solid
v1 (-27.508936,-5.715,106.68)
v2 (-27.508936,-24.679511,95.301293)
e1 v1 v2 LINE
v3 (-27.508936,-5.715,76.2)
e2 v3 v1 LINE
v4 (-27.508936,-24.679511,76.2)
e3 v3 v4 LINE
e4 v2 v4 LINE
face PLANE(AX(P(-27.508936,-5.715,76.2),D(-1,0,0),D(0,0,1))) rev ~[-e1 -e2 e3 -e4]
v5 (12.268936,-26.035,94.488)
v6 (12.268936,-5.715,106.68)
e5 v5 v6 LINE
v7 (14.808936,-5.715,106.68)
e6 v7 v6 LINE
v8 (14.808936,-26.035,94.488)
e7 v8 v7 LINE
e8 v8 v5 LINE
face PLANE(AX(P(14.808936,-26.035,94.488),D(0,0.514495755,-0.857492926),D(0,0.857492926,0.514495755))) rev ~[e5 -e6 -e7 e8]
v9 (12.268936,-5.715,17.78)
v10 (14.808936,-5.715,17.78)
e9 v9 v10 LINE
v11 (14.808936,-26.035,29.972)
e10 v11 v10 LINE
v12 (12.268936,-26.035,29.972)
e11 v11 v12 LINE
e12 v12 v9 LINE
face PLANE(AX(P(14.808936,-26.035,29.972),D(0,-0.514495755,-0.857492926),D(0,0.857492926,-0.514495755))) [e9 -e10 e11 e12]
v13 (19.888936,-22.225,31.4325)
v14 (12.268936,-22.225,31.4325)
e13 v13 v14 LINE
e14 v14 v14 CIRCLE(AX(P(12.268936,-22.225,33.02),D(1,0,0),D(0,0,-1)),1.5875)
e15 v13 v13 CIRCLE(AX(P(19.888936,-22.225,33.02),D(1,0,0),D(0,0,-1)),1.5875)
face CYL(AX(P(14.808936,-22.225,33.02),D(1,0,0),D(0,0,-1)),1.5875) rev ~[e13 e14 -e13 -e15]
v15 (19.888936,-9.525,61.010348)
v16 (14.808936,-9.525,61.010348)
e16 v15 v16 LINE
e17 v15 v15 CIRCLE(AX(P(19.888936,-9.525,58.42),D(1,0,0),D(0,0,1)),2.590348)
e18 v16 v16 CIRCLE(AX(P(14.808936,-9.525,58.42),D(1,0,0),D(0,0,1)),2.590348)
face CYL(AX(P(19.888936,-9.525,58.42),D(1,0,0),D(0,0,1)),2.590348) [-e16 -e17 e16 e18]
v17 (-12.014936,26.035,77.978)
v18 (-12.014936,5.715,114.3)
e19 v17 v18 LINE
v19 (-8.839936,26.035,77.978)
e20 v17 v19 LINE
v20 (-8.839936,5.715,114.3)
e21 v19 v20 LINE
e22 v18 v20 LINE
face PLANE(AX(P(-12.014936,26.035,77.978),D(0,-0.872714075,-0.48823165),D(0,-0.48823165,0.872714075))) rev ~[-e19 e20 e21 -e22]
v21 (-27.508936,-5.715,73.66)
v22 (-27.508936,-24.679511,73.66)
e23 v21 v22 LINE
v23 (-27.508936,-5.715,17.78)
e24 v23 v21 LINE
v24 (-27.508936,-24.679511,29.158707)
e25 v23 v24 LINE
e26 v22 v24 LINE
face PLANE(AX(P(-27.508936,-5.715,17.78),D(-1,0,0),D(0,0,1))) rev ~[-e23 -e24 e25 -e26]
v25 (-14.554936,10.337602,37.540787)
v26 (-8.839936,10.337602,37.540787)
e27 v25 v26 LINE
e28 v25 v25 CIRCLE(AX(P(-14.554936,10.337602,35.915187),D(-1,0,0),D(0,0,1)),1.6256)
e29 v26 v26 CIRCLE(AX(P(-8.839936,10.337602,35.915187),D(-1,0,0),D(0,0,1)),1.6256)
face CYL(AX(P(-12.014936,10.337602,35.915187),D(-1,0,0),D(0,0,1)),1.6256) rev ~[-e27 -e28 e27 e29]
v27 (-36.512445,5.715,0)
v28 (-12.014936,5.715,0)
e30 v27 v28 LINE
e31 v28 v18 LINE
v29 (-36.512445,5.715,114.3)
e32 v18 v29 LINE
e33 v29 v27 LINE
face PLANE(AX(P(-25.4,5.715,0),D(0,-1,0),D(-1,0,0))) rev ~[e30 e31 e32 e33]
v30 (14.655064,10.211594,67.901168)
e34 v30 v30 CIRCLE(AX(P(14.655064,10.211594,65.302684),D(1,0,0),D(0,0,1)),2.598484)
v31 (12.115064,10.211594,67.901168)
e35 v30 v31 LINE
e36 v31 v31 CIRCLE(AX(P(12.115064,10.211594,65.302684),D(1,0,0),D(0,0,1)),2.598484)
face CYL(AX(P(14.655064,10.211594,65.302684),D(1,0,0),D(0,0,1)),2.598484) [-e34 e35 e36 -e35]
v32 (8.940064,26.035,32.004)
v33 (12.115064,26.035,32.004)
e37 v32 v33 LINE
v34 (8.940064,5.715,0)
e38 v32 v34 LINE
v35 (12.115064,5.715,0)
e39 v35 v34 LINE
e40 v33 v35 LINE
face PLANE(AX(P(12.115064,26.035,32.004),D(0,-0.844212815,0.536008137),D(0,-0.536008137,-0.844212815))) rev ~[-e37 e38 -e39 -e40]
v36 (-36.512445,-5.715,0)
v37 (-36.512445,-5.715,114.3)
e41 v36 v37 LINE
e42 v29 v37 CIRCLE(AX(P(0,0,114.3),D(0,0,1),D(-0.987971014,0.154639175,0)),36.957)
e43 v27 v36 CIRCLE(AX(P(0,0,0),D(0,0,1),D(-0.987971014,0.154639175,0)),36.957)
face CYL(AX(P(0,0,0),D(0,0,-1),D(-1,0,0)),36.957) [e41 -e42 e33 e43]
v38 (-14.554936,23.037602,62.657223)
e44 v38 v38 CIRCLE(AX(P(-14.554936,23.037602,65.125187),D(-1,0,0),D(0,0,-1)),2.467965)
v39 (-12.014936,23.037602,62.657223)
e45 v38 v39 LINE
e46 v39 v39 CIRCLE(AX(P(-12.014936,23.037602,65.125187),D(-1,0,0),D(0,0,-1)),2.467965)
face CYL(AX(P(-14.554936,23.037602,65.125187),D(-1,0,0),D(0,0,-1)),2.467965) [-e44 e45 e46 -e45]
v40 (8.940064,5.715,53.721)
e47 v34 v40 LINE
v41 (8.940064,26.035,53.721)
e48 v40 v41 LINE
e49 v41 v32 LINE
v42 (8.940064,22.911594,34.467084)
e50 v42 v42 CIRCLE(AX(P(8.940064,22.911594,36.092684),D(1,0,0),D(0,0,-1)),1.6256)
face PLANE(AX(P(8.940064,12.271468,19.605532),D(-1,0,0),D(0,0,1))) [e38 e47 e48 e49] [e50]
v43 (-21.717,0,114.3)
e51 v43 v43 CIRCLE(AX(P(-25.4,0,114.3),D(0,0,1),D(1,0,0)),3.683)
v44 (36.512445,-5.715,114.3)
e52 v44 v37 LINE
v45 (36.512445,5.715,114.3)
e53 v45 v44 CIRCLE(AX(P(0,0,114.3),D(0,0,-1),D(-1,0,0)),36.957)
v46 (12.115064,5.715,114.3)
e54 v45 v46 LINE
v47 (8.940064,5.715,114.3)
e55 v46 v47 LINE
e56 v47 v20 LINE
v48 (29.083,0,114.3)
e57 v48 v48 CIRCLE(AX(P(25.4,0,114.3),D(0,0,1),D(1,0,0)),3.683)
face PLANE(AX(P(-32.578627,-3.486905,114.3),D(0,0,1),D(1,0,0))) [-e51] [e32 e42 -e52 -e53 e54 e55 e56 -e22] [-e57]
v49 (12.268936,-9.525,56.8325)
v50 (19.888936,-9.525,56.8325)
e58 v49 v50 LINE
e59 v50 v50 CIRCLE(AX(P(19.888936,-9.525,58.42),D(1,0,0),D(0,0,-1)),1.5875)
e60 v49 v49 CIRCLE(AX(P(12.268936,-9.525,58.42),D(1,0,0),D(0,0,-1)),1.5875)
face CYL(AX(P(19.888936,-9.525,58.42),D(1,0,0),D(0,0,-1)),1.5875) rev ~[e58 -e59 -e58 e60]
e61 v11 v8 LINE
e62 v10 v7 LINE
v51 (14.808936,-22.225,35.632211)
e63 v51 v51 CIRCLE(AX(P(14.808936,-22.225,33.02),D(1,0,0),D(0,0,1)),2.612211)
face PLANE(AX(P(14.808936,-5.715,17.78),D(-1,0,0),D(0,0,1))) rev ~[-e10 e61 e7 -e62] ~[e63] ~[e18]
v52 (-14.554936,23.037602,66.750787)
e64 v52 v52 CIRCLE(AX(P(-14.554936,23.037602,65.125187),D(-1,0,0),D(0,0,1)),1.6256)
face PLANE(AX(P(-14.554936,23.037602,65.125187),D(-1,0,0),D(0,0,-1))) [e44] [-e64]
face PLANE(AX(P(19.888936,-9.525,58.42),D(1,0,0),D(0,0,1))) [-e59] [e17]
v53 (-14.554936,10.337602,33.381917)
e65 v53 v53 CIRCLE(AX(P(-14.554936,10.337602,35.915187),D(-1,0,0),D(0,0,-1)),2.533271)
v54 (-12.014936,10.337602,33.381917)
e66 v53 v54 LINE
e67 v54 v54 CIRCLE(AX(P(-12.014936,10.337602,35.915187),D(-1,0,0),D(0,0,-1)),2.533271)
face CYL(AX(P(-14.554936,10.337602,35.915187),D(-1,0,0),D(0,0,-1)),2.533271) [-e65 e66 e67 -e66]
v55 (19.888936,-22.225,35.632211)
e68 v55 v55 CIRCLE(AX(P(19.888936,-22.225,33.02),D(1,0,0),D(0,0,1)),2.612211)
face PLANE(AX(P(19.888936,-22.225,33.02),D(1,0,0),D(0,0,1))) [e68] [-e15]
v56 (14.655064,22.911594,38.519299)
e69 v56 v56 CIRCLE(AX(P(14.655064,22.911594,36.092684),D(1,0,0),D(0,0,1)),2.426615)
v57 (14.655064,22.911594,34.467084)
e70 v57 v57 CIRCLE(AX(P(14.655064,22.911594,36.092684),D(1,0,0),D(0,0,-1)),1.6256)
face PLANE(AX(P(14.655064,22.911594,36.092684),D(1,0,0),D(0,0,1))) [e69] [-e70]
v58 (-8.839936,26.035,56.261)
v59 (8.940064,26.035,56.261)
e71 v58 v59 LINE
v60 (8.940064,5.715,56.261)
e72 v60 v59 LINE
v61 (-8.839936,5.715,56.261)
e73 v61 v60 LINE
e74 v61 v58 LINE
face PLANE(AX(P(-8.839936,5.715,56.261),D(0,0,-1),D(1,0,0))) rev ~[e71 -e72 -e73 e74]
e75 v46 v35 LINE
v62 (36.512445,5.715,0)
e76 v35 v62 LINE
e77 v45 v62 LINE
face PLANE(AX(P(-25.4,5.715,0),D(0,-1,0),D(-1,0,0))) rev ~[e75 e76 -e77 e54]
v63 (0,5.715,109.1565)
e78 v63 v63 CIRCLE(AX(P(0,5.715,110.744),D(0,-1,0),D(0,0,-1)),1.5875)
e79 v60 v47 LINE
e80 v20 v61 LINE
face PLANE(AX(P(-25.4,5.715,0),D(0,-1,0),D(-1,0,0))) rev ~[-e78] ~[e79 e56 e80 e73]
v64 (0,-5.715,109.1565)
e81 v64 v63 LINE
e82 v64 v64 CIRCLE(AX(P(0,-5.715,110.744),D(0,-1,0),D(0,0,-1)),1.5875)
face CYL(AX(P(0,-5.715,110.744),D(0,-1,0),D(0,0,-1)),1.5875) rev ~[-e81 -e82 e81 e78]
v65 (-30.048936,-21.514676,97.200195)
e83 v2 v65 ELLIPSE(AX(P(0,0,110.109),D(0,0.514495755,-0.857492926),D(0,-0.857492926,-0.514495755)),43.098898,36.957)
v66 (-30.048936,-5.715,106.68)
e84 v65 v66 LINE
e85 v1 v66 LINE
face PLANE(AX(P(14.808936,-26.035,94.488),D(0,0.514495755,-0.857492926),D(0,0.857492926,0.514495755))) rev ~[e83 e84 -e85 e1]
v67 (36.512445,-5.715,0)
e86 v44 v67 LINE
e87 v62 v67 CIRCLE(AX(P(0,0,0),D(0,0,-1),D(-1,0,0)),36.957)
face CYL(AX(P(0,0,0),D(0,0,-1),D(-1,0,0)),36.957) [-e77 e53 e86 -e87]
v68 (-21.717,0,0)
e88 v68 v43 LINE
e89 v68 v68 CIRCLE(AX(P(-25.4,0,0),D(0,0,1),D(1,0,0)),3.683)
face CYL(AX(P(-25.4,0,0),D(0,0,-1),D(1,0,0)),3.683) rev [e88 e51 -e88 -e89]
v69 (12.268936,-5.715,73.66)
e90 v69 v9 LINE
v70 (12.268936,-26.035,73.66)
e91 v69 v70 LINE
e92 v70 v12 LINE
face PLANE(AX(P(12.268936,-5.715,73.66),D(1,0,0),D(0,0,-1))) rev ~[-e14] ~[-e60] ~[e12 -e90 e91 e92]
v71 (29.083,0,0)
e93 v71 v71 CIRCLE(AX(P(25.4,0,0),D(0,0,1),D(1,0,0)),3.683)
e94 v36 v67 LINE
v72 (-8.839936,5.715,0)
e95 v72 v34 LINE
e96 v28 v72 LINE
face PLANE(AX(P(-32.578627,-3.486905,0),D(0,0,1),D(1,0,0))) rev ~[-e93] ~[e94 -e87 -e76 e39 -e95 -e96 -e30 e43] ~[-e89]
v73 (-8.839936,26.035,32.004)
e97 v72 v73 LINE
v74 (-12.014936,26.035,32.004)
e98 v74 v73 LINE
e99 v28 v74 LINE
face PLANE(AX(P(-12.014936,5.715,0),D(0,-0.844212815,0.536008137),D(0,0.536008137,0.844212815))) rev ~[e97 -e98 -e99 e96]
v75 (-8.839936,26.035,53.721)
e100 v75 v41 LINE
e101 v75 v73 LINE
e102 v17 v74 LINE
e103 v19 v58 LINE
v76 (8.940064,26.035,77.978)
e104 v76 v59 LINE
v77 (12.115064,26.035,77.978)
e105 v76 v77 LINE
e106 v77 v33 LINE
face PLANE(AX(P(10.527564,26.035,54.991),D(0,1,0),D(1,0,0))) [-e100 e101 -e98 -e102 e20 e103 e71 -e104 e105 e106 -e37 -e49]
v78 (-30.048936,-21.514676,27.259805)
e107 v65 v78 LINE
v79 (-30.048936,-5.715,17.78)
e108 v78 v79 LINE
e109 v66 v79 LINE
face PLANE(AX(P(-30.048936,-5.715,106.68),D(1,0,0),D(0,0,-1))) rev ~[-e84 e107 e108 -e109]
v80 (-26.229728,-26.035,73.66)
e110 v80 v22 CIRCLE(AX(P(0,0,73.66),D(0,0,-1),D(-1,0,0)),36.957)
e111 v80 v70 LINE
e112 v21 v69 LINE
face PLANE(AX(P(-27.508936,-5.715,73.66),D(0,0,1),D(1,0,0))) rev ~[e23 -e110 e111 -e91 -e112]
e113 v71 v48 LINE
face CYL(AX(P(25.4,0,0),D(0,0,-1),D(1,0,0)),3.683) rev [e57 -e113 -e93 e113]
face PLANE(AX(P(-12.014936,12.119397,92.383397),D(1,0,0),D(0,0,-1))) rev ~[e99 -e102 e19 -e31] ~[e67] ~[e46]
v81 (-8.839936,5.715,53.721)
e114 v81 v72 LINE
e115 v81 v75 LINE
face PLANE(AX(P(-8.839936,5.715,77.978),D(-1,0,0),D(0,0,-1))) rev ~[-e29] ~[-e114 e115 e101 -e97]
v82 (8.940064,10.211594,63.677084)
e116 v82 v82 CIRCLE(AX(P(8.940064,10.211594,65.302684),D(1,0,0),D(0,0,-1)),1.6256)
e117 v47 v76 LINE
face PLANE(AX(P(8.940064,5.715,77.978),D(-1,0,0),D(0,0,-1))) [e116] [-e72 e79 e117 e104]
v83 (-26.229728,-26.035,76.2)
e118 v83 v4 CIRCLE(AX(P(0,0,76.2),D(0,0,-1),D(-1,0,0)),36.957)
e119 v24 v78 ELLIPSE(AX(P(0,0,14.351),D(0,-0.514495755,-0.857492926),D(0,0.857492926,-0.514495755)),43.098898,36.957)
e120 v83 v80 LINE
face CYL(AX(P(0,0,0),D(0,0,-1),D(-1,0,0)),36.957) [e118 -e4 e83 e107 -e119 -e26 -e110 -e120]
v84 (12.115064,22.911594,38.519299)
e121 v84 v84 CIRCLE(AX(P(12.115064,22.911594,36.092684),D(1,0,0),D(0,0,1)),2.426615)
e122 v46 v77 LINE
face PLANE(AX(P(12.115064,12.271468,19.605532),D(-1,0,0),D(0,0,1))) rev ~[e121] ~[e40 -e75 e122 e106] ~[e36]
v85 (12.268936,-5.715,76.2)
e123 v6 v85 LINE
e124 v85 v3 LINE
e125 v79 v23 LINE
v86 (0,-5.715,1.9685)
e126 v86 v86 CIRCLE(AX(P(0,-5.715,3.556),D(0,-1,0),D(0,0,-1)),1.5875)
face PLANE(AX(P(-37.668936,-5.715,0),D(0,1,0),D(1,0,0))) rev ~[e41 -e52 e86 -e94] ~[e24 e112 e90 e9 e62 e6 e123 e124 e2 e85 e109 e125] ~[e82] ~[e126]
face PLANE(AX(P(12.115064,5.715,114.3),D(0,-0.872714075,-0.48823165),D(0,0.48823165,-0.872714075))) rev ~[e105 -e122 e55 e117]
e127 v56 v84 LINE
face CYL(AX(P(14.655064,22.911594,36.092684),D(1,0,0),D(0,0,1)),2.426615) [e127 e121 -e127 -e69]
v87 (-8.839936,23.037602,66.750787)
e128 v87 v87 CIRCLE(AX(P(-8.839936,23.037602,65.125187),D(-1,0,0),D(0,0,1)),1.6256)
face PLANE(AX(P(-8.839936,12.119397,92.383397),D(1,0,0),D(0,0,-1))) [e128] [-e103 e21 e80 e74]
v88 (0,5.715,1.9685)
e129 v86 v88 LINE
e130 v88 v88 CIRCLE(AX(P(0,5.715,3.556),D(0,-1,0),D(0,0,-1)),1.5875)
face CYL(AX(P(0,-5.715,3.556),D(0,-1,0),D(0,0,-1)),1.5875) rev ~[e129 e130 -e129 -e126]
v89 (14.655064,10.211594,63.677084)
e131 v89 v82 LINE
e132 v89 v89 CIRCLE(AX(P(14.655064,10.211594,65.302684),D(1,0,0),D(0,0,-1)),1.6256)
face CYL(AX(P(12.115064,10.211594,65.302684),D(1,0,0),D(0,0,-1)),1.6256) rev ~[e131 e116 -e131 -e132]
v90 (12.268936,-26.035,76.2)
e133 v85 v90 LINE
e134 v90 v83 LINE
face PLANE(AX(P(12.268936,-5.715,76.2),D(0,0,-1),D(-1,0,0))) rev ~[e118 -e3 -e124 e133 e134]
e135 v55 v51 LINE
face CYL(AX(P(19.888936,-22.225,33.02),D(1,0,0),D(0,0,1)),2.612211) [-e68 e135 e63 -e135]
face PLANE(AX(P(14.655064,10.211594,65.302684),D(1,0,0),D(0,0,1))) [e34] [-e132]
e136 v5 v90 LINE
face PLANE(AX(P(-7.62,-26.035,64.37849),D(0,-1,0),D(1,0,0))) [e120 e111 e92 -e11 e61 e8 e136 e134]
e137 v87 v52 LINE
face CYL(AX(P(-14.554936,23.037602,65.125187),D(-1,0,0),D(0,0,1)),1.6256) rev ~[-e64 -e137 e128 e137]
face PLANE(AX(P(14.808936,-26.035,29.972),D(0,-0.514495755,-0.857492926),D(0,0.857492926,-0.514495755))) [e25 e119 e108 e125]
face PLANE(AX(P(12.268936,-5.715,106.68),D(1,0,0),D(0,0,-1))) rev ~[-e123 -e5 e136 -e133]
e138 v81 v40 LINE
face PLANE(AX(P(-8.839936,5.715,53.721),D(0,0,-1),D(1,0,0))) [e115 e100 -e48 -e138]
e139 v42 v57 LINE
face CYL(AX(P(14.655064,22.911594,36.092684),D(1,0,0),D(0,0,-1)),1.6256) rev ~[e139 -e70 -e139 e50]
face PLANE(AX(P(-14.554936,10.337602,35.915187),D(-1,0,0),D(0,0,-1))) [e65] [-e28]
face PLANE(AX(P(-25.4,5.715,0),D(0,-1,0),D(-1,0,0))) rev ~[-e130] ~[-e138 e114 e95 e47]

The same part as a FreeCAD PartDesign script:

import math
import FreeCAD as App
import Part
import Sketcher
Q = App.Units.Quantity


def edges_at(feature, points):
    """Names of the edges that pass closest to the given points."""
    edges = feature.Shape.Edges
    near = lambda p: min(range(len(edges)), key=lambda i: edges[i].distToShape(Part.Vertex(*p))[0])
    return sorted({f"Edge{near(p) + 1}" for p in points})

doc = App.newDocument("Part")
body = doc.addObject("PartDesign::Body", "Body")

# Sketch on XY plane
sketch1 = body.newObject("Sketcher::SketchObject", "Sketch")
sketch1.AttachmentSupport = (doc.getObject("XY_Plane"), [""])
sketch1.MapMode = "FlatFace"
sketch1.addGeometry(Part.ArcOfCircle(Part.Circle(App.Vector(0, 0, 0), App.Vector(0, 0, 1), 38.1), math.radians(171.373073), math.radians(180)), False)
sketch1.addGeometry(Part.ArcOfCircle(Part.Circle(App.Vector(0, 0, 0), App.Vector(0, 0, 1), 38.1), math.radians(180), math.radians(188.626927)), False)
sketch1.addGeometry(Part.LineSegment(App.Vector(-37.668936, -5.715, 0), App.Vector(37.668936, -5.715, 0)), False)
sketch1.addGeometry(Part.ArcOfCircle(Part.Circle(App.Vector(0, 0, 0), App.Vector(0, 0, 1), 38.1), math.radians(-8.626927), math.radians(0)), False)
sketch1.addGeometry(Part.ArcOfCircle(Part.Circle(App.Vector(0, 0, 0), App.Vector(0, 0, 1), 38.1), math.radians(0), math.radians(8.626927)), False)
sketch1.addGeometry(Part.LineSegment(App.Vector(37.668936, 5.715, 0), App.Vector(-37.668936, 5.715, 0)), False)
sketch1.addGeometry(Part.Circle(App.Vector(-25.4, 0, 0), App.Vector(0, 0, 1), 3.683), False)
sketch1.addGeometry(Part.Circle(App.Vector(25.4, 0, 0), App.Vector(0, 0, 1), 3.683), False)
sketch1.addConstraint(Sketcher.Constraint("Tangent", 0, 2, 1, 1))
sketch1.addConstraint(Sketcher.Constraint("Coincident", 1, 2, 2, 1))
sketch1.addConstraint(Sketcher.Constraint("Coincident", 2, 2, 3, 1))
sketch1.addConstraint(Sketcher.Constraint("Tangent", 3, 2, 4, 1))
sketch1.addConstraint(Sketcher.Constraint("Coincident", 4, 2, 5, 1))
sketch1.addConstraint(Sketcher.Constraint("Coincident", 5, 2, 0, 1))
sketch1.addConstraint(Sketcher.Constraint("Horizontal", 2))
sketch1.addConstraint(Sketcher.Constraint("Horizontal", 5))
sketch1.addConstraint(Sketcher.Constraint("Coincident", 0, 3, -1, 1))
sketch1.addConstraint(Sketcher.Constraint("Coincident", 3, 3, -1, 1))
sketch1.addConstraint(Sketcher.Constraint("Equal", 0, 1))
sketch1.addConstraint(Sketcher.Constraint("Equal", 1, 3))
sketch1.addConstraint(Sketcher.Constraint("Equal", 3, 4))
sketch1.addConstraint(Sketcher.Constraint("Equal", 6, 7))
sketch1.addConstraint(Sketcher.Constraint("Symmetric", 6, 3, 7, 3, -1, 1))
sketch1.addConstraint(Sketcher.Constraint("PointOnObject", 6, 3, -1))
sketch1.addConstraint(Sketcher.Constraint("PointOnObject", 0, 2, -1))
sketch1.addConstraint(Sketcher.Constraint("PointOnObject", 3, 2, -1))
sketch1.addConstraint(Sketcher.Constraint("Vertical", 2, 2, 4, 2))
sketch1.addConstraint(Sketcher.Constraint("Radius", 0, Q("1.5 in")))
sketch1.addConstraint(Sketcher.Constraint("Diameter", 6, Q("0.29 in")))
sketch1.addConstraint(Sketcher.Constraint("DistanceX", 6, 3, -1, 1, Q("1 in")))
sketch1.addConstraint(Sketcher.Constraint("DistanceY", 2, 2, 4, 2, Q("0.45 in")))
pad1 = body.newObject("PartDesign::Pad", "Pad")
pad1.Profile = sketch1
pad1.Length = Q("4.5 in")

# Sketch on XZ plane
sketch2 = body.newObject("Sketcher::SketchObject", "Sketch001")
sketch2.AttachmentSupport = (doc.getObject("XZ_Plane"), [""])
sketch2.MapMode = "FlatFace"
sketch2.AttachmentOffset = App.Placement(App.Vector(0, 0, -0.225 * 25.4), App.Rotation())
sketch2.addGeometry(Part.LineSegment(App.Vector(-12.014936, 32.004, 0), App.Vector(-12.014936, 77.978, 0)), False)
sketch2.addGeometry(Part.LineSegment(App.Vector(-12.014936, 77.978, 0), App.Vector(-8.839936, 77.978, 0)), False)
sketch2.addGeometry(Part.LineSegment(App.Vector(-8.839936, 77.978, 0), App.Vector(-8.839936, 32.004, 0)), False)
sketch2.addGeometry(Part.LineSegment(App.Vector(-8.839936, 32.004, 0), App.Vector(-12.014936, 32.004, 0)), False)
sketch2.addGeometry(Part.LineSegment(App.Vector(8.940064, 32.004, 0), App.Vector(8.940064, 77.978, 0)), False)
sketch2.addGeometry(Part.LineSegment(App.Vector(8.940064, 77.978, 0), App.Vector(12.115064, 77.978, 0)), False)
sketch2.addGeometry(Part.LineSegment(App.Vector(12.115064, 77.978, 0), App.Vector(12.115064, 32.004, 0)), False)
sketch2.addGeometry(Part.LineSegment(App.Vector(12.115064, 32.004, 0), App.Vector(8.940064, 32.004, 0)), False)
sketch2.addConstraint(Sketcher.Constraint("Coincident", 0, 2, 1, 1))
sketch2.addConstraint(Sketcher.Constraint("Coincident", 1, 2, 2, 1))
sketch2.addConstraint(Sketcher.Constraint("Coincident", 2, 2, 3, 1))
sketch2.addConstraint(Sketcher.Constraint("Coincident", 3, 2, 0, 1))
sketch2.addConstraint(Sketcher.Constraint("Coincident", 4, 2, 5, 1))
sketch2.addConstraint(Sketcher.Constraint("Coincident", 5, 2, 6, 1))
sketch2.addConstraint(Sketcher.Constraint("Coincident", 6, 2, 7, 1))
sketch2.addConstraint(Sketcher.Constraint("Coincident", 7, 2, 4, 1))
sketch2.addConstraint(Sketcher.Constraint("Vertical", 0))
sketch2.addConstraint(Sketcher.Constraint("Horizontal", 1))
sketch2.addConstraint(Sketcher.Constraint("Vertical", 2))
sketch2.addConstraint(Sketcher.Constraint("Horizontal", 3))
sketch2.addConstraint(Sketcher.Constraint("Vertical", 4))
sketch2.addConstraint(Sketcher.Constraint("Horizontal", 5))
sketch2.addConstraint(Sketcher.Constraint("Vertical", 6))
sketch2.addConstraint(Sketcher.Constraint("Horizontal", 7))
sketch2.addConstraint(Sketcher.Constraint("Horizontal", 1, 2, 4, 2))
sketch2.addConstraint(Sketcher.Constraint("Horizontal", 3, 2, 6, 2))
sketch2.addConstraint(Sketcher.Constraint("Equal", 3, 5))
sketch2.addConstraint(Sketcher.Constraint("DistanceY", 0, 1, 0, 2, Q("1.81 in")))
sketch2.addConstraint(Sketcher.Constraint("DistanceX", 1, 2, 4, 2, Q("0.7 in")))
sketch2.addConstraint(Sketcher.Constraint("DistanceX", 1, 1, 1, 2, Q("0.125 in")))
sketch2.addConstraint(Sketcher.Constraint("DistanceY", -1, 1, 0, 2, Q("3.07 in")))
sketch2.addConstraint(Sketcher.Constraint("DistanceX", 0, 2, -1, 1, Q("12.014936 mm")))
pad2 = body.newObject("PartDesign::Pad", "Pad001")
pad2.Profile = sketch2
pad2.Length = Q("0.8 in")
pad2.Reversed = True

# Sketch on XZ plane
sketch3 = body.newObject("Sketcher::SketchObject", "Sketch002")
sketch3.AttachmentSupport = (doc.getObject("XZ_Plane"), [""])
sketch3.MapMode = "FlatFace"
sketch3.AttachmentOffset = App.Placement(App.Vector(0, 0, -0.225 * 25.4), App.Rotation())
sketch3.addGeometry(Part.LineSegment(App.Vector(-8.839936, 53.721, 0), App.Vector(-8.839936, 56.261, 0)), False)
sketch3.addGeometry(Part.LineSegment(App.Vector(-8.839936, 56.261, 0), App.Vector(8.940064, 56.261, 0)), False)
sketch3.addGeometry(Part.LineSegment(App.Vector(8.940064, 56.261, 0), App.Vector(8.940064, 53.721, 0)), False)
sketch3.addGeometry(Part.LineSegment(App.Vector(8.940064, 53.721, 0), App.Vector(-8.839936, 53.721, 0)), False)
sketch3.addConstraint(Sketcher.Constraint("Coincident", 0, 2, 1, 1))
sketch3.addConstraint(Sketcher.Constraint("Coincident", 1, 2, 2, 1))
sketch3.addConstraint(Sketcher.Constraint("Coincident", 2, 2, 3, 1))
sketch3.addConstraint(Sketcher.Constraint("Coincident", 3, 2, 0, 1))
sketch3.addConstraint(Sketcher.Constraint("Vertical", 0))
sketch3.addConstraint(Sketcher.Constraint("Horizontal", 1))
sketch3.addConstraint(Sketcher.Constraint("Vertical", 2))
sketch3.addConstraint(Sketcher.Constraint("Horizontal", 3))
sketch3.addConstraint(Sketcher.Constraint("DistanceX", 1, 1, 1, 2, Q("0.7 in")))
sketch3.addConstraint(Sketcher.Constraint("DistanceY", 0, 1, 0, 2, Q("0.1 in")))
sketch3.addConstraint(Sketcher.Constraint("DistanceY", -1, 1, 0, 2, Q("2.215 in")))
sketch3.addConstraint(Sketcher.Constraint("DistanceX", 0, 2, -1, 1, Q("8.839936 mm")))
pad3 = body.newObject("PartDesign::Pad", "Pad002")
pad3.Profile = sketch3
pad3.Length = Q("0.8 in")
pad3.Reversed = True

# Sketch on XZ plane
sketch4 = body.newObject("Sketcher::SketchObject", "Sketch003")
sketch4.AttachmentSupport = (doc.getObject("XZ_Plane"), [""])
sketch4.MapMode = "FlatFace"
sketch4.AttachmentOffset = App.Placement(App.Vector(0, 0, 0.225 * 25.4), App.Rotation())
sketch4.addGeometry(Part.LineSegment(App.Vector(12.268936, 73.66, 0), App.Vector(12.268936, 17.78, 0)), False)
sketch4.addGeometry(Part.LineSegment(App.Vector(12.268936, 17.78, 0), App.Vector(14.808936, 17.78, 0)), False)
sketch4.addGeometry(Part.LineSegment(App.Vector(14.808936, 17.78, 0), App.Vector(14.808936, 106.68, 0)), False)
sketch4.addGeometry(Part.LineSegment(App.Vector(14.808936, 106.68, 0), App.Vector(12.268936, 106.68, 0)), False)
sketch4.addGeometry(Part.LineSegment(App.Vector(12.268936, 106.68, 0), App.Vector(12.268936, 76.2, 0)), False)
sketch4.addGeometry(Part.LineSegment(App.Vector(12.268936, 76.2, 0), App.Vector(-27.508936, 76.2, 0)), False)
sketch4.addGeometry(Part.LineSegment(App.Vector(-27.508936, 76.2, 0), App.Vector(-27.508936, 106.68, 0)), False)
sketch4.addGeometry(Part.LineSegment(App.Vector(-27.508936, 106.68, 0), App.Vector(-30.048936, 106.68, 0)), False)
sketch4.addGeometry(Part.LineSegment(App.Vector(-30.048936, 106.68, 0), App.Vector(-30.048936, 17.78, 0)), False)
sketch4.addGeometry(Part.LineSegment(App.Vector(-30.048936, 17.78, 0), App.Vector(-27.508936, 17.78, 0)), False)
sketch4.addGeometry(Part.LineSegment(App.Vector(-27.508936, 17.78, 0), App.Vector(-27.508936, 73.66, 0)), False)
sketch4.addGeometry(Part.LineSegment(App.Vector(-27.508936, 73.66, 0), App.Vector(12.268936, 73.66, 0)), False)
sketch4.addConstraint(Sketcher.Constraint("Coincident", 0, 2, 1, 1))
sketch4.addConstraint(Sketcher.Constraint("Coincident", 1, 2, 2, 1))
sketch4.addConstraint(Sketcher.Constraint("Coincident", 2, 2, 3, 1))
sketch4.addConstraint(Sketcher.Constraint("Coincident", 3, 2, 4, 1))
sketch4.addConstraint(Sketcher.Constraint("Coincident", 4, 2, 5, 1))
sketch4.addConstraint(Sketcher.Constraint("Coincident", 5, 2, 6, 1))
sketch4.addConstraint(Sketcher.Constraint("Coincident", 6, 2, 7, 1))
sketch4.addConstraint(Sketcher.Constraint("Coincident", 7, 2, 8, 1))
sketch4.addConstraint(Sketcher.Constraint("Coincident", 8, 2, 9, 1))
sketch4.addConstraint(Sketcher.Constraint("Coincident", 9, 2, 10, 1))
sketch4.addConstraint(Sketcher.Constraint("Coincident", 10, 2, 11, 1))
sketch4.addConstraint(Sketcher.Constraint("Coincident", 11, 2, 0, 1))
sketch4.addConstraint(Sketcher.Constraint("Vertical", 0))
sketch4.addConstraint(Sketcher.Constraint("Horizontal", 1))
sketch4.addConstraint(Sketcher.Constraint("Vertical", 2))
sketch4.addConstraint(Sketcher.Constraint("Horizontal", 3))
sketch4.addConstraint(Sketcher.Constraint("Vertical", 4))
sketch4.addConstraint(Sketcher.Constraint("Horizontal", 5))
sketch4.addConstraint(Sketcher.Constraint("Vertical", 6))
sketch4.addConstraint(Sketcher.Constraint("Horizontal", 7))
sketch4.addConstraint(Sketcher.Constraint("Vertical", 8))
sketch4.addConstraint(Sketcher.Constraint("Horizontal", 9))
sketch4.addConstraint(Sketcher.Constraint("Vertical", 10))
sketch4.addConstraint(Sketcher.Constraint("Horizontal", 11))
sketch4.addConstraint(Sketcher.Constraint("Horizontal", 3, 2, 6, 2))
sketch4.addConstraint(Sketcher.Constraint("Horizontal", 1, 2, 8, 2))
sketch4.addConstraint(Sketcher.Constraint("Vertical", 0, 2, 3, 2))
sketch4.addConstraint(Sketcher.Constraint("Vertical", 6, 2, 9, 2))
sketch4.addConstraint(Sketcher.Constraint("Equal", 3, 7))
sketch4.addConstraint(Sketcher.Constraint("DistanceX", 1, 1, 1, 2, Q("0.1 in")))
sketch4.addConstraint(Sketcher.Constraint("DistanceY", 0, 2, 0, 1, Q("2.2 in")))
sketch4.addConstraint(Sketcher.Constraint("DistanceY", 2, 1, 2, 2, Q("3.5 in")))
sketch4.addConstraint(Sketcher.Constraint("DistanceY", 4, 2, 4, 1, Q("1.2 in")))
sketch4.addConstraint(Sketcher.Constraint("DistanceY", -1, 1, 4, 2, Q("3 in")))
sketch4.addConstraint(Sketcher.Constraint("DistanceX", 5, 2, 5, 1, Q("39.777873 mm")))
sketch4.addConstraint(Sketcher.Constraint("DistanceX", -1, 1, 0, 2, Q("12.268936 mm")))
pad4 = body.newObject("PartDesign::Pad", "Pad003")
pad4.Profile = sketch4
pad4.Length = Q("0.8 in")

# Sketch on YZ plane
sketch5 = body.newObject("Sketcher::SketchObject", "Sketch004")
sketch5.AttachmentSupport = (doc.getObject("YZ_Plane"), [""])
sketch5.MapMode = "FlatFace"
sketch5.AttachmentOffset = App.Placement(App.Vector(0, 0, 14.808936), App.Rotation())
sketch5.addGeometry(Part.Circle(App.Vector(-9.525, 58.42, 0), App.Vector(0, 0, 1), 1.5875), False)
sketch5.addConstraint(Sketcher.Constraint("Diameter", 0, Q("0.125 in")))
sketch5.addConstraint(Sketcher.Constraint("DistanceY", -1, 1, 0, 3, Q("2.3 in")))
sketch5.addConstraint(Sketcher.Constraint("DistanceX", 0, 3, -1, 1, Q("0.375 in")))
pocket1 = body.newObject("PartDesign::Pocket", "Pocket")
pocket1.Profile = sketch5
pocket1.Type = "UpToFirst"

# Sketch on YZ plane
sketch6 = body.newObject("Sketcher::SketchObject", "Sketch005")
sketch6.AttachmentSupport = (doc.getObject("YZ_Plane"), [""])
sketch6.MapMode = "FlatFace"
sketch6.AttachmentOffset = App.Placement(App.Vector(0, 0, 14.808936), App.Rotation())
sketch6.addGeometry(Part.Circle(App.Vector(-22.225, 33.02, 0), App.Vector(0, 0, 1), 1.5875), False)
sketch6.addConstraint(Sketcher.Constraint("Diameter", 0, Q("0.125 in")))
sketch6.addConstraint(Sketcher.Constraint("DistanceY", -1, 1, 0, 3, Q("1.3 in")))
sketch6.addConstraint(Sketcher.Constraint("DistanceX", 0, 3, -1, 1, Q("0.875 in")))
pocket2 = body.newObject("PartDesign::Pocket", "Pocket001")
pocket2.Profile = sketch6
pocket2.Type = "UpToFirst"

# Sketch on XZ plane
sketch7 = body.newObject("Sketcher::SketchObject", "Sketch006")
sketch7.AttachmentSupport = (doc.getObject("XZ_Plane"), [""])
sketch7.MapMode = "FlatFace"
sketch7.AttachmentOffset = App.Placement(App.Vector(0, 0, 0.225 * 25.4), App.Rotation())
sketch7.addGeometry(Part.Circle(App.Vector(0, 110.744, 0), App.Vector(0, 0, 1), 1.5875), False)
sketch7.addConstraint(Sketcher.Constraint("PointOnObject", 0, 3, -2))
sketch7.addConstraint(Sketcher.Constraint("Diameter", 0, Q("0.125 in")))
sketch7.addConstraint(Sketcher.Constraint("DistanceY", -1, 1, 0, 3, Q("4.36 in")))
pocket3 = body.newObject("PartDesign::Pocket", "Pocket002")
pocket3.Profile = sketch7
pocket3.Type = "UpToFirst"

# Sketch on XZ plane
sketch8 = body.newObject("Sketcher::SketchObject", "Sketch007")
sketch8.AttachmentSupport = (doc.getObject("XZ_Plane"), [""])
sketch8.MapMode = "FlatFace"
sketch8.AttachmentOffset = App.Placement(App.Vector(0, 0, 0.225 * 25.4), App.Rotation())
sketch8.addGeometry(Part.Circle(App.Vector(0, 3.556, 0), App.Vector(0, 0, 1), 1.5875), False)
sketch8.addConstraint(Sketcher.Constraint("PointOnObject", 0, 3, -2))
sketch8.addConstraint(Sketcher.Constraint("Diameter", 0, Q("0.125 in")))
sketch8.addConstraint(Sketcher.Constraint("DistanceY", -1, 1, 0, 3, Q("0.14 in")))
pocket4 = body.newObject("PartDesign::Pocket", "Pocket003")
pocket4.Profile = sketch8
pocket4.Type = "UpToFirst"

# Sketch on YZ plane
sketch9 = body.newObject("Sketcher::SketchObject", "Sketch008")
sketch9.AttachmentSupport = (doc.getObject("YZ_Plane"), [""])
sketch9.MapMode = "FlatFace"
sketch9.AttachmentOffset = App.Placement(App.Vector(0, 0, -12.014936), App.Rotation())
sketch9.addGeometry(Part.LineSegment(App.Vector(26.035, 77.978, 0), App.Vector(5.715, 77.978, 0)), False)
sketch9.addGeometry(Part.LineSegment(App.Vector(5.715, 77.978, 0), App.Vector(5.715, 114.3, 0)), False)
sketch9.addGeometry(Part.LineSegment(App.Vector(5.715, 114.3, 0), App.Vector(26.035, 77.978, 0)), False)
sketch9.addGeometry(Part.LineSegment(App.Vector(5.715, 32.004, 0), App.Vector(26.035, 32.004, 0)), False)
sketch9.addGeometry(Part.LineSegment(App.Vector(26.035, 32.004, 0), App.Vector(5.715, 0, 0)), False)
sketch9.addGeometry(Part.LineSegment(App.Vector(5.715, 0, 0), App.Vector(5.715, 32.004, 0)), False)
sketch9.addConstraint(Sketcher.Constraint("Coincident", 0, 2, 1, 1))
sketch9.addConstraint(Sketcher.Constraint("Coincident", 1, 2, 2, 1))
sketch9.addConstraint(Sketcher.Constraint("Coincident", 2, 2, 0, 1))
sketch9.addConstraint(Sketcher.Constraint("Coincident", 3, 2, 4, 1))
sketch9.addConstraint(Sketcher.Constraint("Coincident", 4, 2, 5, 1))
sketch9.addConstraint(Sketcher.Constraint("Coincident", 5, 2, 3, 1))
sketch9.addConstraint(Sketcher.Constraint("Horizontal", 0))
sketch9.addConstraint(Sketcher.Constraint("Vertical", 1))
sketch9.addConstraint(Sketcher.Constraint("Horizontal", 3))
sketch9.addConstraint(Sketcher.Constraint("Vertical", 5))
sketch9.addConstraint(Sketcher.Constraint("PointOnObject", 4, 2, -1))
sketch9.addConstraint(Sketcher.Constraint("Vertical", 2, 2, 3, 2))
sketch9.addConstraint(Sketcher.Constraint("Vertical", 1, 2, 4, 2))
sketch9.addConstraint(Sketcher.Constraint("DistanceX", 0, 2, 0, 1, Q("0.8 in")))
sketch9.addConstraint(Sketcher.Constraint("DistanceY", 1, 1, 1, 2, Q("1.43 in")))
sketch9.addConstraint(Sketcher.Constraint("DistanceY", 5, 1, 5, 2, Q("1.26 in")))
sketch9.addConstraint(Sketcher.Constraint("DistanceY", -1, 1, 1, 2, Q("4.5 in")))
sketch9.addConstraint(Sketcher.Constraint("DistanceX", -1, 1, 0, 2, Q("0.225 in")))
pad5 = body.newObject("PartDesign::Pad", "Pad004")
pad5.Profile = sketch9
pad5.Length = Q("0.125 in")

# Sketch on YZ plane
sketch10 = body.newObject("Sketcher::SketchObject", "Sketch009")
sketch10.AttachmentSupport = (doc.getObject("YZ_Plane"), [""])
sketch10.MapMode = "FlatFace"
sketch10.AttachmentOffset = App.Placement(App.Vector(0, 0, 12.115064), App.Rotation())
sketch10.addGeometry(Part.LineSegment(App.Vector(5.715, 0, 0), App.Vector(26.035, 32.004, 0)), False)
sketch10.addGeometry(Part.LineSegment(App.Vector(26.035, 32.004, 0), App.Vector(5.715, 32.004, 0)), False)
sketch10.addGeometry(Part.LineSegment(App.Vector(5.715, 32.004, 0), App.Vector(5.715, 0, 0)), False)
sketch10.addGeometry(Part.LineSegment(App.Vector(5.715, 114.3, 0), App.Vector(5.715, 77.978, 0)), False)
sketch10.addGeometry(Part.LineSegment(App.Vector(5.715, 77.978, 0), App.Vector(26.035, 77.978, 0)), False)
sketch10.addGeometry(Part.LineSegment(App.Vector(26.035, 77.978, 0), App.Vector(5.715, 114.3, 0)), False)
sketch10.addConstraint(Sketcher.Constraint("Coincident", 0, 2, 1, 1))
sketch10.addConstraint(Sketcher.Constraint("Coincident", 1, 2, 2, 1))
sketch10.addConstraint(Sketcher.Constraint("Coincident", 2, 2, 0, 1))
sketch10.addConstraint(Sketcher.Constraint("Coincident", 3, 2, 4, 1))
sketch10.addConstraint(Sketcher.Constraint("Coincident", 4, 2, 5, 1))
sketch10.addConstraint(Sketcher.Constraint("Coincident", 5, 2, 3, 1))
sketch10.addConstraint(Sketcher.Constraint("Horizontal", 1))
sketch10.addConstraint(Sketcher.Constraint("Vertical", 2))
sketch10.addConstraint(Sketcher.Constraint("Vertical", 3))
sketch10.addConstraint(Sketcher.Constraint("Horizontal", 4))
sketch10.addConstraint(Sketcher.Constraint("PointOnObject", 2, 2, -1))
sketch10.addConstraint(Sketcher.Constraint("Vertical", 2, 2, 3, 2))
sketch10.addConstraint(Sketcher.Constraint("Vertical", 0, 2, 4, 2))
sketch10.addConstraint(Sketcher.Constraint("DistanceX", 1, 2, 1, 1, Q("0.8 in")))
sketch10.addConstraint(Sketcher.Constraint("DistanceY", 2, 2, 2, 1, Q("1.26 in")))
sketch10.addConstraint(Sketcher.Constraint("DistanceY", 3, 2, 3, 1, Q("1.43 in")))
sketch10.addConstraint(Sketcher.Constraint("DistanceY", -1, 1, 5, 2, Q("4.5 in")))
sketch10.addConstraint(Sketcher.Constraint("DistanceX", -1, 1, 0, 2, Q("1.025 in")))
pad6 = body.newObject("PartDesign::Pad", "Pad005")
pad6.Profile = sketch10
pad6.Length = Q("0.125 in")
pad6.Reversed = True

# Sketch on YZ plane
sketch11 = body.newObject("Sketcher::SketchObject", "Sketch010")
sketch11.AttachmentSupport = (doc.getObject("YZ_Plane"), [""])
sketch11.MapMode = "FlatFace"
sketch11.AttachmentOffset = App.Placement(App.Vector(0, 0, 19.888936), App.Rotation())
sketch11.addGeometry(Part.Circle(App.Vector(-9.525, 58.42, 0), App.Vector(0, 0, 1), 2.590348), False)
sketch11.addGeometry(Part.Circle(App.Vector(-9.525, 58.42, 0), App.Vector(0, 0, 1), 1.5875), False)
sketch11.addGeometry(Part.Circle(App.Vector(-22.225, 33.02, 0), App.Vector(0, 0, 1), 2.612211), False)
sketch11.addGeometry(Part.Circle(App.Vector(-22.225, 33.02, 0), App.Vector(0, 0, 1), 1.5875), False)
sketch11.addConstraint(Sketcher.Constraint("Coincident", 1, 3, 0, 3))
sketch11.addConstraint(Sketcher.Constraint("Coincident", 3, 3, 2, 3))
sketch11.addConstraint(Sketcher.Constraint("Equal", 1, 3))
sketch11.addConstraint(Sketcher.Constraint("Diameter", 1, Q("0.125 in")))
sketch11.addConstraint(Sketcher.Constraint("DistanceY", 2, 3, 0, 3, Q("1 in")))
sketch11.addConstraint(Sketcher.Constraint("DistanceY", -1, 1, 0, 3, Q("2.3 in")))
sketch11.addConstraint(Sketcher.Constraint("DistanceX", 2, 3, 0, 3, Q("0.5 in")))
sketch11.addConstraint(Sketcher.Constraint("Diameter", 2, Q("5.224422 mm")))
sketch11.addConstraint(Sketcher.Constraint("DistanceX", 0, 3, -1, 1, Q("0.375 in")))
sketch11.addConstraint(Sketcher.Constraint("Diameter", 0, Q("5.180695 mm")))
pad7 = body.newObject("PartDesign::Pad", "Pad006")
pad7.Profile = sketch11
pad7.Length = Q("0.2 in")
pad7.Reversed = True
doc.recompute()

chamfer = body.newObject("PartDesign::Chamfer", "Chamfer")
chamfer.Base = (pad7, edges_at(pad7, [(-30.049, -26.035, 62.23)]))
chamfer.Size = Q("0.1 in")

# Sketch on YZ plane
sketch12 = body.newObject("Sketcher::SketchObject", "Sketch011")
sketch12.AttachmentSupport = (doc.getObject("YZ_Plane"), [""])
sketch12.MapMode = "FlatFace"
sketch12.AttachmentOffset = App.Placement(App.Vector(0, 0, -12.014936), App.Rotation())
sketch12.addGeometry(Part.Circle(App.Vector(23.037602, 65.125187, 0), App.Vector(0, 0, 1), 1.6256), False)
sketch12.addGeometry(Part.Circle(App.Vector(10.337602, 35.915187, 0), App.Vector(0, 0, 1), 1.6256), False)
sketch12.addConstraint(Sketcher.Constraint("Equal", 0, 1))
sketch12.addConstraint(Sketcher.Constraint("Diameter", 0, Q("0.128 in")))
sketch12.addConstraint(Sketcher.Constraint("DistanceX", 1, 3, 0, 3, Q("0.5 in")))
sketch12.addConstraint(Sketcher.Constraint("DistanceY", 1, 3, 0, 3, Q("1.15 in")))
sketch12.addConstraint(Sketcher.Constraint("DistanceX", -1, 1, 0, 3, Q("23.037602 mm")))
sketch12.addConstraint(Sketcher.Constraint("DistanceY", -1, 1, 0, 3, Q("65.125187 mm")))
pocket5 = body.newObject("PartDesign::Pocket", "Pocket004")
pocket5.Profile = sketch12
pocket5.Length = Q("0.2 in")
pocket5.Reversed = True

# Sketch on YZ plane
sketch13 = body.newObject("Sketcher::SketchObject", "Sketch012")
sketch13.AttachmentSupport = (doc.getObject("YZ_Plane"), [""])
sketch13.MapMode = "FlatFace"
sketch13.AttachmentOffset = App.Placement(App.Vector(0, 0, 12.115064), App.Rotation())
sketch13.addGeometry(Part.Circle(App.Vector(22.911594, 36.092684, 0), App.Vector(0, 0, 1), 1.6256), False)
sketch13.addGeometry(Part.Circle(App.Vector(10.211594, 65.302684, 0), App.Vector(0, 0, 1), 1.6256), False)
sketch13.addConstraint(Sketcher.Constraint("Equal", 0, 1))
sketch13.addConstraint(Sketcher.Constraint("Diameter", 0, Q("0.128 in")))
sketch13.addConstraint(Sketcher.Constraint("DistanceX", 1, 3, 0, 3, Q("0.5 in")))
sketch13.addConstraint(Sketcher.Constraint("DistanceY", 0, 3, 1, 3, Q("1.15 in")))
sketch13.addConstraint(Sketcher.Constraint("DistanceX", -1, 1, 0, 3, Q("22.911594 mm")))
sketch13.addConstraint(Sketcher.Constraint("DistanceY", -1, 1, 0, 3, Q("36.092684 mm")))
pocket6 = body.newObject("PartDesign::Pocket", "Pocket005")
pocket6.Profile = sketch13
pocket6.Length = Q("0.2 in")

# Sketch on YZ plane
sketch14 = body.newObject("Sketcher::SketchObject", "Sketch013")
sketch14.AttachmentSupport = (doc.getObject("YZ_Plane"), [""])
sketch14.MapMode = "FlatFace"
sketch14.AttachmentOffset = App.Placement(App.Vector(0, 0, 14.655064), App.Rotation())
sketch14.addGeometry(Part.Circle(App.Vector(22.911594, 36.092684, 0), App.Vector(0, 0, 1), 2.426615), False)
sketch14.addGeometry(Part.Circle(App.Vector(22.911594, 36.092684, 0), App.Vector(0, 0, 1), 1.6256), False)
sketch14.addGeometry(Part.Circle(App.Vector(10.211594, 65.302684, 0), App.Vector(0, 0, 1), 2.598484), False)
sketch14.addGeometry(Part.Circle(App.Vector(10.211594, 65.302684, 0), App.Vector(0, 0, 1), 1.6256), False)
sketch14.addConstraint(Sketcher.Constraint("Coincident", 1, 3, 0, 3))
sketch14.addConstraint(Sketcher.Constraint("Coincident", 3, 3, 2, 3))
sketch14.addConstraint(Sketcher.Constraint("Equal", 1, 3))
sketch14.addConstraint(Sketcher.Constraint("Diameter", 1, Q("0.128 in")))
sketch14.addConstraint(Sketcher.Constraint("DistanceX", 2, 3, 0, 3, Q("0.5 in")))
sketch14.addConstraint(Sketcher.Constraint("DistanceY", 0, 3, 2, 3, Q("1.15 in")))
sketch14.addConstraint(Sketcher.Constraint("Diameter", 0, Q("4.853229 mm")))
sketch14.addConstraint(Sketcher.Constraint("Diameter", 2, Q("5.196968 mm")))
sketch14.addConstraint(Sketcher.Constraint("DistanceX", -1, 1, 0, 3, Q("22.911594 mm")))
sketch14.addConstraint(Sketcher.Constraint("DistanceY", -1, 1, 0, 3, Q("36.092684 mm")))
pad8 = body.newObject("PartDesign::Pad", "Pad007")
pad8.Profile = sketch14
pad8.Length = Q("0.1 in")
pad8.Reversed = True

# Sketch on YZ plane
sketch15 = body.newObject("Sketcher::SketchObject", "Sketch014")
sketch15.AttachmentSupport = (doc.getObject("YZ_Plane"), [""])
sketch15.MapMode = "FlatFace"
sketch15.AttachmentOffset = App.Placement(App.Vector(0, 0, -14.554936), App.Rotation())
sketch15.addGeometry(Part.Circle(App.Vector(23.037602, 65.125187, 0), App.Vector(0, 0, 1), 2.467965), False)
sketch15.addGeometry(Part.Circle(App.Vector(23.037602, 65.125187, 0), App.Vector(0, 0, 1), 1.6256), False)
sketch15.addGeometry(Part.Circle(App.Vector(10.337602, 35.915187, 0), App.Vector(0, 0, 1), 2.533271), False)
sketch15.addGeometry(Part.Circle(App.Vector(10.337602, 35.915187, 0), App.Vector(0, 0, 1), 1.6256), False)
sketch15.addConstraint(Sketcher.Constraint("Coincident", 1, 3, 0, 3))
sketch15.addConstraint(Sketcher.Constraint("Coincident", 3, 3, 2, 3))
sketch15.addConstraint(Sketcher.Constraint("Equal", 1, 3))
sketch15.addConstraint(Sketcher.Constraint("Diameter", 1, Q("0.128 in")))
sketch15.addConstraint(Sketcher.Constraint("DistanceX", 2, 3, 0, 3, Q("0.5 in")))
sketch15.addConstraint(Sketcher.Constraint("DistanceY", 2, 3, 0, 3, Q("1.15 in")))
sketch15.addConstraint(Sketcher.Constraint("Diameter", 0, Q("4.935929 mm")))
sketch15.addConstraint(Sketcher.Constraint("Diameter", 2, Q("5.066541 mm")))
sketch15.addConstraint(Sketcher.Constraint("DistanceX", -1, 1, 0, 3, Q("23.037602 mm")))
sketch15.addConstraint(Sketcher.Constraint("DistanceY", -1, 1, 0, 3, Q("65.125187 mm")))
pad9 = body.newObject("PartDesign::Pad", "Pad008")
pad9.Profile = sketch15
pad9.Length = Q("0.1 in")

# Sketch on XY plane
sketch16 = body.newObject("Sketcher::SketchObject", "Sketch015")
sketch16.AttachmentSupport = (doc.getObject("XY_Plane"), [""])
sketch16.MapMode = "FlatFace"
sketch16.addGeometry(Part.Circle(App.Vector(0, 0, 0), App.Vector(0, 0, 1), 48.771558), False)
sketch16.addGeometry(Part.Circle(App.Vector(0, 0, 0), App.Vector(0, 0, 1), 36.957), False)
sketch16.addConstraint(Sketcher.Constraint("Coincident", 0, 3, -1, 1))
sketch16.addConstraint(Sketcher.Constraint("Coincident", 1, 3, -1, 1))
sketch16.addConstraint(Sketcher.Constraint("Diameter", 1, Q("2.91 in")))
sketch16.addConstraint(Sketcher.Constraint("Diameter", 0, Q("97.543115 mm")))
pocket7 = body.newObject("PartDesign::Pocket", "Pocket006")
pocket7.Profile = sketch16
pocket7.Type = "ThroughAll"
pocket7.Reversed = True

# Sketch on YZ plane
sketch17 = body.newObject("Sketcher::SketchObject", "Sketch016")
sketch17.AttachmentSupport = (doc.getObject("YZ_Plane"), [""])
sketch17.MapMode = "FlatFace"
sketch17.AttachmentOffset = App.Placement(App.Vector(0, 0, 14.808936), App.Rotation())
sketch17.addGeometry(Part.LineSegment(App.Vector(-5.715, 17.78, 0), App.Vector(-26.035, 29.972, 0)), False)
sketch17.addGeometry(Part.LineSegment(App.Vector(-26.035, 29.972, 0), App.Vector(-26.035, 17.78, 0)), False)
sketch17.addGeometry(Part.LineSegment(App.Vector(-26.035, 17.78, 0), App.Vector(-5.715, 17.78, 0)), False)
sketch17.addGeometry(Part.LineSegment(App.Vector(-5.715, 106.68, 0), App.Vector(-26.035, 106.68, 0)), False)
sketch17.addGeometry(Part.LineSegment(App.Vector(-26.035, 106.68, 0), App.Vector(-26.035, 94.488, 0)), False)
sketch17.addGeometry(Part.LineSegment(App.Vector(-26.035, 94.488, 0), App.Vector(-5.715, 106.68, 0)), False)
sketch17.addConstraint(Sketcher.Constraint("Coincident", 0, 2, 1, 1))
sketch17.addConstraint(Sketcher.Constraint("Coincident", 1, 2, 2, 1))
sketch17.addConstraint(Sketcher.Constraint("Coincident", 2, 2, 0, 1))
sketch17.addConstraint(Sketcher.Constraint("Coincident", 3, 2, 4, 1))
sketch17.addConstraint(Sketcher.Constraint("Coincident", 4, 2, 5, 1))
sketch17.addConstraint(Sketcher.Constraint("Coincident", 5, 2, 3, 1))
sketch17.addConstraint(Sketcher.Constraint("Vertical", 1))
sketch17.addConstraint(Sketcher.Constraint("Horizontal", 2))
sketch17.addConstraint(Sketcher.Constraint("Horizontal", 3))
sketch17.addConstraint(Sketcher.Constraint("Vertical", 4))
sketch17.addConstraint(Sketcher.Constraint("Vertical", 1, 2, 3, 2))
sketch17.addConstraint(Sketcher.Constraint("Vertical", 2, 2, 5, 2))
sketch17.addConstraint(Sketcher.Constraint("Equal", 1, 4))
sketch17.addConstraint(Sketcher.Constraint("DistanceX", 2, 1, 2, 2, Q("0.8 in")))
sketch17.addConstraint(Sketcher.Constraint("DistanceY", 1, 2, 1, 1, Q("0.48 in")))
sketch17.addConstraint(Sketcher.Constraint("DistanceY", -1, 1, 1, 2, Q("0.7 in")))
sketch17.addConstraint(Sketcher.Constraint("DistanceY", -1, 1, 3, 2, Q("4.2 in")))
sketch17.addConstraint(Sketcher.Constraint("DistanceX", 0, 2, -1, 1, Q("1.025 in")))
pocket8 = body.newObject("PartDesign::Pocket", "Pocket007")
pocket8.Profile = sketch17
pocket8.Type = "ThroughAll"

doc.recompute()
